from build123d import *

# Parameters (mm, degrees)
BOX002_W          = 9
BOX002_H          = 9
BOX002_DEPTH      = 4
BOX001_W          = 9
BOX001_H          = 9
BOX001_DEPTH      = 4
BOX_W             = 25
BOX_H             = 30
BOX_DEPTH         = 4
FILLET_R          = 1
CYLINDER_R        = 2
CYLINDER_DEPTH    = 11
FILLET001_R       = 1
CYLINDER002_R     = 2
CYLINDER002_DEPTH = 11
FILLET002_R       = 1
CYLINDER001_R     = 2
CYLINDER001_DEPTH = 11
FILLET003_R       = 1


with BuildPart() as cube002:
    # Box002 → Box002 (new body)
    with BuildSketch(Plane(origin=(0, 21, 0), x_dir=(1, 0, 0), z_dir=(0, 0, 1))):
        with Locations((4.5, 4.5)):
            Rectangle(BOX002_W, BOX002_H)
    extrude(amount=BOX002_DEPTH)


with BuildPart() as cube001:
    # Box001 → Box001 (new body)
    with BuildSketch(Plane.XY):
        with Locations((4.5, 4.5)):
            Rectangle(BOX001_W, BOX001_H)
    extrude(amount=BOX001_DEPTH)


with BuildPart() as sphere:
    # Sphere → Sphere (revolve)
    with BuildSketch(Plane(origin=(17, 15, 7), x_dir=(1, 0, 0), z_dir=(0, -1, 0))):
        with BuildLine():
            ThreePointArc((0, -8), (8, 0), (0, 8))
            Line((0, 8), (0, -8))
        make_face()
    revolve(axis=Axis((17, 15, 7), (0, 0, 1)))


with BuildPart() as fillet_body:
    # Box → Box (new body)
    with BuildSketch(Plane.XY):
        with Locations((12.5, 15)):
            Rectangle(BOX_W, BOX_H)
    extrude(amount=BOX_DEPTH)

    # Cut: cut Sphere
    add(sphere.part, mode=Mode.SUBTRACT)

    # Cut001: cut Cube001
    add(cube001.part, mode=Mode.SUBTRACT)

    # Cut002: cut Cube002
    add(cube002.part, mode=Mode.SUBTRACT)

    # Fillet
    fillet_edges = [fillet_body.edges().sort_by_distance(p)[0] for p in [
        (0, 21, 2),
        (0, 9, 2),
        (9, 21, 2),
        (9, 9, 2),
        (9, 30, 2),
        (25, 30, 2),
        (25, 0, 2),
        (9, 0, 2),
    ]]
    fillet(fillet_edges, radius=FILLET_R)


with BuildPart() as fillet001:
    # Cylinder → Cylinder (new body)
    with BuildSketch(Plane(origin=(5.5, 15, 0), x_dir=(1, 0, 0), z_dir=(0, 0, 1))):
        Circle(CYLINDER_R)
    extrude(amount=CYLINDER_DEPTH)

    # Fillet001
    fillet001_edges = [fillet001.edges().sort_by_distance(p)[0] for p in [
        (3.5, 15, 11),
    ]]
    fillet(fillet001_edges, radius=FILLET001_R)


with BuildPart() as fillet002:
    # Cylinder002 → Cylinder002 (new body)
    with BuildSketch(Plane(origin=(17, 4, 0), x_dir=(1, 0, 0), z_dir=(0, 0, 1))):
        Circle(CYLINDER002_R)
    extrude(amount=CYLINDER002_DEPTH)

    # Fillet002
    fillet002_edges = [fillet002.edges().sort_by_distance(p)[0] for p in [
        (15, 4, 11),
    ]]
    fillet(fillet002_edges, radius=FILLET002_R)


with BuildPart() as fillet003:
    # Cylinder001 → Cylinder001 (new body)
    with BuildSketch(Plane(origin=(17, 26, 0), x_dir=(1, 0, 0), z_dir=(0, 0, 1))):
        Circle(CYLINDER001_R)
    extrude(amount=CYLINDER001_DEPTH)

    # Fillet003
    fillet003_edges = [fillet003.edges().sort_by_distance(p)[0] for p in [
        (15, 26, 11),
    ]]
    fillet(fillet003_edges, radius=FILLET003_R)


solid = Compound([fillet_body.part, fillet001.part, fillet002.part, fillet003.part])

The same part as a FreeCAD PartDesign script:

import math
import FreeCAD as App
import Part
import Sketcher


def edges_at(feature, points):
    """Names of the edges that pass closest to the given points."""
    edges = feature.Shape.Edges
    near = lambda p: min(range(len(edges)), key=lambda i: edges[i].distToShape(Part.Vertex(*p))[0])
    return sorted({f"Edge{near(p) + 1}" for p in points})


def add_polygon(sketch, points):
    """Adds a closed chain of lines whose ends are joined by coincident constraints."""
    first, n = sketch.GeometryCount, len(points)
    for a, b in zip(points, points[1:] + points[:1]):
        sketch.addGeometry(Part.LineSegment(App.Vector(*a, 0), App.Vector(*b, 0)), False)
    for i in range(n):
        sketch.addConstraint(Sketcher.Constraint("Coincident", first + i, 2, first + (i + 1) % n, 1))

doc = App.newDocument("Part")
body = doc.addObject("PartDesign::Body", "Body")

sketch1 = body.newObject("Sketcher::SketchObject", "Sketch")
sketch1.AttachmentSupport = (doc.getObject("XY_Plane"), [""])
sketch1.MapMode = "FlatFace"
add_polygon(sketch1, [(0, 30), (0, 21), (9, 21), (9, 30)])
sketch1.addConstraint(Sketcher.Constraint("Vertical", 0))
sketch1.addConstraint(Sketcher.Constraint("Horizontal", 1))
sketch1.addConstraint(Sketcher.Constraint("Vertical", 2))
sketch1.addConstraint(Sketcher.Constraint("Horizontal", 3))
sketch1.addConstraint(Sketcher.Constraint("PointOnObject", 0, 2, -2))
sketch1.addConstraint(Sketcher.Constraint("Equal", 3, 0))
sketch1.addConstraint(Sketcher.Constraint("DistanceX", 1, 1, 1, 2, 9.0))
sketch1.addConstraint(Sketcher.Constraint("DistanceY", -1, 1, 0, 2, 21.0))
pad1 = body.newObject("PartDesign::Pad", "Pad")
pad1.Profile = sketch1
pad1.Length = 4
body2 = doc.addObject("PartDesign::Body", "Body001")

sketch2 = body2.newObject("Sketcher::SketchObject", "Sketch001")
sketch2.AttachmentSupport = (doc.getObject("XY_Plane001"), [""])
sketch2.MapMode = "FlatFace"
add_polygon(sketch2, [(0, 9), (0, 0), (9, 0), (9, 9)])
sketch2.addConstraint(Sketcher.Constraint("Vertical", 0))
sketch2.addConstraint(Sketcher.Constraint("Horizontal", 1))
sketch2.addConstraint(Sketcher.Constraint("Vertical", 2))
sketch2.addConstraint(Sketcher.Constraint("Horizontal", 3))
sketch2.addConstraint(Sketcher.Constraint("Coincident", 0, 2, -1, 1))
sketch2.addConstraint(Sketcher.Constraint("Equal", 3, 0))
sketch2.addConstraint(Sketcher.Constraint("DistanceX", 1, 1, 1, 2, 9.0))
pad2 = body2.newObject("PartDesign::Pad", "Pad001")
pad2.Profile = sketch2
pad2.Length = 4
body3 = doc.addObject("PartDesign::Body", "Body002")

sketch3 = body3.newObject("Sketcher::SketchObject", "Sketch002")
sketch3.AttachmentSupport = (doc.getObject("XZ_Plane002"), [""])
sketch3.MapMode = "FlatFace"
sketch3.AttachmentOffset = App.Placement(App.Vector(0, 0, -15), App.Rotation())
sketch3.addGeometry(Part.ArcOfCircle(Part.Circle(App.Vector(17, 7, 0), App.Vector(0, 0, 1), 8), math.radians(-90), math.radians(90)), False)
sketch3.addGeometry(Part.LineSegment(App.Vector(17, 15, 0), App.Vector(17, -1, 0)), False)
sketch3.addGeometry(Part.LineSegment(App.Vector(17, -1, 0), App.Vector(17, 15, 0)), True)
sketch3.addConstraint(Sketcher.Constraint("Coincident", 0, 1, 1, 2))
sketch3.addConstraint(Sketcher.Constraint("Coincident", 1, 1, 0, 2))
sketch3.addConstraint(Sketcher.Constraint("Vertical", 1))
sketch3.addConstraint(Sketcher.Constraint("Vertical", 2))
sketch3.addConstraint(Sketcher.Constraint("Coincident", 2, 1, 0, 1))
sketch3.addConstraint(Sketcher.Constraint("Equal", 1, 2))
sketch3.addConstraint(Sketcher.Constraint("Radius", 0, 8.0))
sketch3.addConstraint(Sketcher.Constraint("DistanceX", -1, 1, 0, 3, 17.0))
sketch3.addConstraint(Sketcher.Constraint("DistanceY", -1, 1, 0, 3, 7.0))
sketch3.addConstraint(Sketcher.Constraint("DistanceX", -1, 1, 0, 1, 17.0))
revolution = body3.newObject("PartDesign::Revolution", "Revolution")
revolution.Profile = sketch3
revolution.ReferenceAxis = (sketch3, ["Axis0"])
revolution.Angle = 360
body4 = doc.addObject("PartDesign::Body", "Body003")

sketch4 = body4.newObject("Sketcher::SketchObject", "Sketch003")
sketch4.AttachmentSupport = (doc.getObject("XY_Plane003"), [""])
sketch4.MapMode = "FlatFace"
add_polygon(sketch4, [(0, 30), (0, 0), (25, 0), (25, 30)])
sketch4.addConstraint(Sketcher.Constraint("Vertical", 0))
sketch4.addConstraint(Sketcher.Constraint("Horizontal", 1))
sketch4.addConstraint(Sketcher.Constraint("Vertical", 2))
sketch4.addConstraint(Sketcher.Constraint("Horizontal", 3))
sketch4.addConstraint(Sketcher.Constraint("Coincident", 0, 2, -1, 1))
sketch4.addConstraint(Sketcher.Constraint("DistanceX", 1, 1, 1, 2, 25.0))
sketch4.addConstraint(Sketcher.Constraint("DistanceY", 0, 2, 0, 1, 30.0))
pad3 = body4.newObject("PartDesign::Pad", "Pad002")
pad3.Profile = sketch4
pad3.Length = 4
doc.recompute()

boolean = body4.newObject("PartDesign::Boolean", "Boolean")
boolean.Type = "Cut"
boolean.addObjects([body3])
doc.recompute()

boolean2 = body4.newObject("PartDesign::Boolean", "Boolean001")
boolean2.Type = "Cut"
boolean2.addObjects([body2])
doc.recompute()

boolean3 = body4.newObject("PartDesign::Boolean", "Boolean002")
boolean3.Type = "Cut"
boolean3.addObjects([body])
doc.recompute()

fillet = body4.newObject("PartDesign::Fillet", "Fillet")
fillet.Base = (boolean3, edges_at(boolean3, [
    (0, 21, 2),
    (0, 9, 2),
    (9, 21, 2),
    (9, 9, 2),
    (9, 30, 2),
    (25, 30, 2),
    (25, 0, 2),
    (9, 0, 2),
]))
fillet.Radius = 1
body5 = doc.addObject("PartDesign::Body", "Body004")

sketch5 = body5.newObject("Sketcher::SketchObject", "Sketch004")
sketch5.AttachmentSupport = (doc.getObject("XY_Plane004"), [""])
sketch5.MapMode = "FlatFace"
sketch5.addGeometry(Part.Circle(App.Vector(5.5, 15, 0), App.Vector(0, 0, 1), 2), False)
sketch5.addConstraint(Sketcher.Constraint("Diameter", 0, 4.0))
sketch5.addConstraint(Sketcher.Constraint("DistanceY", -1, 1, 0, 3, 15.0))
sketch5.addConstraint(Sketcher.Constraint("DistanceX", -1, 1, 0, 3, 5.5))
pad4 = body5.newObject("PartDesign::Pad", "Pad003")
pad4.Profile = sketch5
pad4.Length = 11
doc.recompute()

fillet2 = body5.newObject("PartDesign::Fillet", "Fillet001")
fillet2.Base = (pad4, edges_at(pad4, [(3.5, 15, 11)]))
fillet2.Radius = 1
body6 = doc.addObject("PartDesign::Body", "Body005")

sketch6 = body6.newObject("Sketcher::SketchObject", "Sketch005")
sketch6.AttachmentSupport = (doc.getObject("XY_Plane005"), [""])
sketch6.MapMode = "FlatFace"
sketch6.addGeometry(Part.Circle(App.Vector(17, 4, 0), App.Vector(0, 0, 1), 2), False)
sketch6.addConstraint(Sketcher.Constraint("Diameter", 0, 4.0))
sketch6.addConstraint(Sketcher.Constraint("DistanceX", -1, 1, 0, 3, 17.0))
sketch6.addConstraint(Sketcher.Constraint("DistanceY", -1, 1, 0, 3, 4.0))
pad5 = body6.newObject("PartDesign::Pad", "Pad004")
pad5.Profile = sketch6
pad5.Length = 11
doc.recompute()

fillet3 = body6.newObject("PartDesign::Fillet", "Fillet002")
fillet3.Base = (pad5, edges_at(pad5, [(15, 4, 11)]))
fillet3.Radius = 1
body7 = doc.addObject("PartDesign::Body", "Body006")

sketch7 = body7.newObject("Sketcher::SketchObject", "Sketch006")
sketch7.AttachmentSupport = (doc.getObject("XY_Plane006"), [""])
sketch7.MapMode = "FlatFace"
sketch7.addGeometry(Part.Circle(App.Vector(17, 26, 0), App.Vector(0, 0, 1), 2), False)
sketch7.addConstraint(Sketcher.Constraint("Diameter", 0, 4.0))
sketch7.addConstraint(Sketcher.Constraint("DistanceX", -1, 1, 0, 3, 17.0))
sketch7.addConstraint(Sketcher.Constraint("DistanceY", -1, 1, 0, 3, 26.0))
pad6 = body7.newObject("PartDesign::Pad", "Pad005")
pad6.Profile = sketch7
pad6.Length = 11
doc.recompute()

fillet4 = body7.newObject("PartDesign::Fillet", "Fillet003")
fillet4.Base = (pad6, edges_at(pad6, [(15, 26, 11)]))
fillet4.Radius = 1

doc.recompute()
